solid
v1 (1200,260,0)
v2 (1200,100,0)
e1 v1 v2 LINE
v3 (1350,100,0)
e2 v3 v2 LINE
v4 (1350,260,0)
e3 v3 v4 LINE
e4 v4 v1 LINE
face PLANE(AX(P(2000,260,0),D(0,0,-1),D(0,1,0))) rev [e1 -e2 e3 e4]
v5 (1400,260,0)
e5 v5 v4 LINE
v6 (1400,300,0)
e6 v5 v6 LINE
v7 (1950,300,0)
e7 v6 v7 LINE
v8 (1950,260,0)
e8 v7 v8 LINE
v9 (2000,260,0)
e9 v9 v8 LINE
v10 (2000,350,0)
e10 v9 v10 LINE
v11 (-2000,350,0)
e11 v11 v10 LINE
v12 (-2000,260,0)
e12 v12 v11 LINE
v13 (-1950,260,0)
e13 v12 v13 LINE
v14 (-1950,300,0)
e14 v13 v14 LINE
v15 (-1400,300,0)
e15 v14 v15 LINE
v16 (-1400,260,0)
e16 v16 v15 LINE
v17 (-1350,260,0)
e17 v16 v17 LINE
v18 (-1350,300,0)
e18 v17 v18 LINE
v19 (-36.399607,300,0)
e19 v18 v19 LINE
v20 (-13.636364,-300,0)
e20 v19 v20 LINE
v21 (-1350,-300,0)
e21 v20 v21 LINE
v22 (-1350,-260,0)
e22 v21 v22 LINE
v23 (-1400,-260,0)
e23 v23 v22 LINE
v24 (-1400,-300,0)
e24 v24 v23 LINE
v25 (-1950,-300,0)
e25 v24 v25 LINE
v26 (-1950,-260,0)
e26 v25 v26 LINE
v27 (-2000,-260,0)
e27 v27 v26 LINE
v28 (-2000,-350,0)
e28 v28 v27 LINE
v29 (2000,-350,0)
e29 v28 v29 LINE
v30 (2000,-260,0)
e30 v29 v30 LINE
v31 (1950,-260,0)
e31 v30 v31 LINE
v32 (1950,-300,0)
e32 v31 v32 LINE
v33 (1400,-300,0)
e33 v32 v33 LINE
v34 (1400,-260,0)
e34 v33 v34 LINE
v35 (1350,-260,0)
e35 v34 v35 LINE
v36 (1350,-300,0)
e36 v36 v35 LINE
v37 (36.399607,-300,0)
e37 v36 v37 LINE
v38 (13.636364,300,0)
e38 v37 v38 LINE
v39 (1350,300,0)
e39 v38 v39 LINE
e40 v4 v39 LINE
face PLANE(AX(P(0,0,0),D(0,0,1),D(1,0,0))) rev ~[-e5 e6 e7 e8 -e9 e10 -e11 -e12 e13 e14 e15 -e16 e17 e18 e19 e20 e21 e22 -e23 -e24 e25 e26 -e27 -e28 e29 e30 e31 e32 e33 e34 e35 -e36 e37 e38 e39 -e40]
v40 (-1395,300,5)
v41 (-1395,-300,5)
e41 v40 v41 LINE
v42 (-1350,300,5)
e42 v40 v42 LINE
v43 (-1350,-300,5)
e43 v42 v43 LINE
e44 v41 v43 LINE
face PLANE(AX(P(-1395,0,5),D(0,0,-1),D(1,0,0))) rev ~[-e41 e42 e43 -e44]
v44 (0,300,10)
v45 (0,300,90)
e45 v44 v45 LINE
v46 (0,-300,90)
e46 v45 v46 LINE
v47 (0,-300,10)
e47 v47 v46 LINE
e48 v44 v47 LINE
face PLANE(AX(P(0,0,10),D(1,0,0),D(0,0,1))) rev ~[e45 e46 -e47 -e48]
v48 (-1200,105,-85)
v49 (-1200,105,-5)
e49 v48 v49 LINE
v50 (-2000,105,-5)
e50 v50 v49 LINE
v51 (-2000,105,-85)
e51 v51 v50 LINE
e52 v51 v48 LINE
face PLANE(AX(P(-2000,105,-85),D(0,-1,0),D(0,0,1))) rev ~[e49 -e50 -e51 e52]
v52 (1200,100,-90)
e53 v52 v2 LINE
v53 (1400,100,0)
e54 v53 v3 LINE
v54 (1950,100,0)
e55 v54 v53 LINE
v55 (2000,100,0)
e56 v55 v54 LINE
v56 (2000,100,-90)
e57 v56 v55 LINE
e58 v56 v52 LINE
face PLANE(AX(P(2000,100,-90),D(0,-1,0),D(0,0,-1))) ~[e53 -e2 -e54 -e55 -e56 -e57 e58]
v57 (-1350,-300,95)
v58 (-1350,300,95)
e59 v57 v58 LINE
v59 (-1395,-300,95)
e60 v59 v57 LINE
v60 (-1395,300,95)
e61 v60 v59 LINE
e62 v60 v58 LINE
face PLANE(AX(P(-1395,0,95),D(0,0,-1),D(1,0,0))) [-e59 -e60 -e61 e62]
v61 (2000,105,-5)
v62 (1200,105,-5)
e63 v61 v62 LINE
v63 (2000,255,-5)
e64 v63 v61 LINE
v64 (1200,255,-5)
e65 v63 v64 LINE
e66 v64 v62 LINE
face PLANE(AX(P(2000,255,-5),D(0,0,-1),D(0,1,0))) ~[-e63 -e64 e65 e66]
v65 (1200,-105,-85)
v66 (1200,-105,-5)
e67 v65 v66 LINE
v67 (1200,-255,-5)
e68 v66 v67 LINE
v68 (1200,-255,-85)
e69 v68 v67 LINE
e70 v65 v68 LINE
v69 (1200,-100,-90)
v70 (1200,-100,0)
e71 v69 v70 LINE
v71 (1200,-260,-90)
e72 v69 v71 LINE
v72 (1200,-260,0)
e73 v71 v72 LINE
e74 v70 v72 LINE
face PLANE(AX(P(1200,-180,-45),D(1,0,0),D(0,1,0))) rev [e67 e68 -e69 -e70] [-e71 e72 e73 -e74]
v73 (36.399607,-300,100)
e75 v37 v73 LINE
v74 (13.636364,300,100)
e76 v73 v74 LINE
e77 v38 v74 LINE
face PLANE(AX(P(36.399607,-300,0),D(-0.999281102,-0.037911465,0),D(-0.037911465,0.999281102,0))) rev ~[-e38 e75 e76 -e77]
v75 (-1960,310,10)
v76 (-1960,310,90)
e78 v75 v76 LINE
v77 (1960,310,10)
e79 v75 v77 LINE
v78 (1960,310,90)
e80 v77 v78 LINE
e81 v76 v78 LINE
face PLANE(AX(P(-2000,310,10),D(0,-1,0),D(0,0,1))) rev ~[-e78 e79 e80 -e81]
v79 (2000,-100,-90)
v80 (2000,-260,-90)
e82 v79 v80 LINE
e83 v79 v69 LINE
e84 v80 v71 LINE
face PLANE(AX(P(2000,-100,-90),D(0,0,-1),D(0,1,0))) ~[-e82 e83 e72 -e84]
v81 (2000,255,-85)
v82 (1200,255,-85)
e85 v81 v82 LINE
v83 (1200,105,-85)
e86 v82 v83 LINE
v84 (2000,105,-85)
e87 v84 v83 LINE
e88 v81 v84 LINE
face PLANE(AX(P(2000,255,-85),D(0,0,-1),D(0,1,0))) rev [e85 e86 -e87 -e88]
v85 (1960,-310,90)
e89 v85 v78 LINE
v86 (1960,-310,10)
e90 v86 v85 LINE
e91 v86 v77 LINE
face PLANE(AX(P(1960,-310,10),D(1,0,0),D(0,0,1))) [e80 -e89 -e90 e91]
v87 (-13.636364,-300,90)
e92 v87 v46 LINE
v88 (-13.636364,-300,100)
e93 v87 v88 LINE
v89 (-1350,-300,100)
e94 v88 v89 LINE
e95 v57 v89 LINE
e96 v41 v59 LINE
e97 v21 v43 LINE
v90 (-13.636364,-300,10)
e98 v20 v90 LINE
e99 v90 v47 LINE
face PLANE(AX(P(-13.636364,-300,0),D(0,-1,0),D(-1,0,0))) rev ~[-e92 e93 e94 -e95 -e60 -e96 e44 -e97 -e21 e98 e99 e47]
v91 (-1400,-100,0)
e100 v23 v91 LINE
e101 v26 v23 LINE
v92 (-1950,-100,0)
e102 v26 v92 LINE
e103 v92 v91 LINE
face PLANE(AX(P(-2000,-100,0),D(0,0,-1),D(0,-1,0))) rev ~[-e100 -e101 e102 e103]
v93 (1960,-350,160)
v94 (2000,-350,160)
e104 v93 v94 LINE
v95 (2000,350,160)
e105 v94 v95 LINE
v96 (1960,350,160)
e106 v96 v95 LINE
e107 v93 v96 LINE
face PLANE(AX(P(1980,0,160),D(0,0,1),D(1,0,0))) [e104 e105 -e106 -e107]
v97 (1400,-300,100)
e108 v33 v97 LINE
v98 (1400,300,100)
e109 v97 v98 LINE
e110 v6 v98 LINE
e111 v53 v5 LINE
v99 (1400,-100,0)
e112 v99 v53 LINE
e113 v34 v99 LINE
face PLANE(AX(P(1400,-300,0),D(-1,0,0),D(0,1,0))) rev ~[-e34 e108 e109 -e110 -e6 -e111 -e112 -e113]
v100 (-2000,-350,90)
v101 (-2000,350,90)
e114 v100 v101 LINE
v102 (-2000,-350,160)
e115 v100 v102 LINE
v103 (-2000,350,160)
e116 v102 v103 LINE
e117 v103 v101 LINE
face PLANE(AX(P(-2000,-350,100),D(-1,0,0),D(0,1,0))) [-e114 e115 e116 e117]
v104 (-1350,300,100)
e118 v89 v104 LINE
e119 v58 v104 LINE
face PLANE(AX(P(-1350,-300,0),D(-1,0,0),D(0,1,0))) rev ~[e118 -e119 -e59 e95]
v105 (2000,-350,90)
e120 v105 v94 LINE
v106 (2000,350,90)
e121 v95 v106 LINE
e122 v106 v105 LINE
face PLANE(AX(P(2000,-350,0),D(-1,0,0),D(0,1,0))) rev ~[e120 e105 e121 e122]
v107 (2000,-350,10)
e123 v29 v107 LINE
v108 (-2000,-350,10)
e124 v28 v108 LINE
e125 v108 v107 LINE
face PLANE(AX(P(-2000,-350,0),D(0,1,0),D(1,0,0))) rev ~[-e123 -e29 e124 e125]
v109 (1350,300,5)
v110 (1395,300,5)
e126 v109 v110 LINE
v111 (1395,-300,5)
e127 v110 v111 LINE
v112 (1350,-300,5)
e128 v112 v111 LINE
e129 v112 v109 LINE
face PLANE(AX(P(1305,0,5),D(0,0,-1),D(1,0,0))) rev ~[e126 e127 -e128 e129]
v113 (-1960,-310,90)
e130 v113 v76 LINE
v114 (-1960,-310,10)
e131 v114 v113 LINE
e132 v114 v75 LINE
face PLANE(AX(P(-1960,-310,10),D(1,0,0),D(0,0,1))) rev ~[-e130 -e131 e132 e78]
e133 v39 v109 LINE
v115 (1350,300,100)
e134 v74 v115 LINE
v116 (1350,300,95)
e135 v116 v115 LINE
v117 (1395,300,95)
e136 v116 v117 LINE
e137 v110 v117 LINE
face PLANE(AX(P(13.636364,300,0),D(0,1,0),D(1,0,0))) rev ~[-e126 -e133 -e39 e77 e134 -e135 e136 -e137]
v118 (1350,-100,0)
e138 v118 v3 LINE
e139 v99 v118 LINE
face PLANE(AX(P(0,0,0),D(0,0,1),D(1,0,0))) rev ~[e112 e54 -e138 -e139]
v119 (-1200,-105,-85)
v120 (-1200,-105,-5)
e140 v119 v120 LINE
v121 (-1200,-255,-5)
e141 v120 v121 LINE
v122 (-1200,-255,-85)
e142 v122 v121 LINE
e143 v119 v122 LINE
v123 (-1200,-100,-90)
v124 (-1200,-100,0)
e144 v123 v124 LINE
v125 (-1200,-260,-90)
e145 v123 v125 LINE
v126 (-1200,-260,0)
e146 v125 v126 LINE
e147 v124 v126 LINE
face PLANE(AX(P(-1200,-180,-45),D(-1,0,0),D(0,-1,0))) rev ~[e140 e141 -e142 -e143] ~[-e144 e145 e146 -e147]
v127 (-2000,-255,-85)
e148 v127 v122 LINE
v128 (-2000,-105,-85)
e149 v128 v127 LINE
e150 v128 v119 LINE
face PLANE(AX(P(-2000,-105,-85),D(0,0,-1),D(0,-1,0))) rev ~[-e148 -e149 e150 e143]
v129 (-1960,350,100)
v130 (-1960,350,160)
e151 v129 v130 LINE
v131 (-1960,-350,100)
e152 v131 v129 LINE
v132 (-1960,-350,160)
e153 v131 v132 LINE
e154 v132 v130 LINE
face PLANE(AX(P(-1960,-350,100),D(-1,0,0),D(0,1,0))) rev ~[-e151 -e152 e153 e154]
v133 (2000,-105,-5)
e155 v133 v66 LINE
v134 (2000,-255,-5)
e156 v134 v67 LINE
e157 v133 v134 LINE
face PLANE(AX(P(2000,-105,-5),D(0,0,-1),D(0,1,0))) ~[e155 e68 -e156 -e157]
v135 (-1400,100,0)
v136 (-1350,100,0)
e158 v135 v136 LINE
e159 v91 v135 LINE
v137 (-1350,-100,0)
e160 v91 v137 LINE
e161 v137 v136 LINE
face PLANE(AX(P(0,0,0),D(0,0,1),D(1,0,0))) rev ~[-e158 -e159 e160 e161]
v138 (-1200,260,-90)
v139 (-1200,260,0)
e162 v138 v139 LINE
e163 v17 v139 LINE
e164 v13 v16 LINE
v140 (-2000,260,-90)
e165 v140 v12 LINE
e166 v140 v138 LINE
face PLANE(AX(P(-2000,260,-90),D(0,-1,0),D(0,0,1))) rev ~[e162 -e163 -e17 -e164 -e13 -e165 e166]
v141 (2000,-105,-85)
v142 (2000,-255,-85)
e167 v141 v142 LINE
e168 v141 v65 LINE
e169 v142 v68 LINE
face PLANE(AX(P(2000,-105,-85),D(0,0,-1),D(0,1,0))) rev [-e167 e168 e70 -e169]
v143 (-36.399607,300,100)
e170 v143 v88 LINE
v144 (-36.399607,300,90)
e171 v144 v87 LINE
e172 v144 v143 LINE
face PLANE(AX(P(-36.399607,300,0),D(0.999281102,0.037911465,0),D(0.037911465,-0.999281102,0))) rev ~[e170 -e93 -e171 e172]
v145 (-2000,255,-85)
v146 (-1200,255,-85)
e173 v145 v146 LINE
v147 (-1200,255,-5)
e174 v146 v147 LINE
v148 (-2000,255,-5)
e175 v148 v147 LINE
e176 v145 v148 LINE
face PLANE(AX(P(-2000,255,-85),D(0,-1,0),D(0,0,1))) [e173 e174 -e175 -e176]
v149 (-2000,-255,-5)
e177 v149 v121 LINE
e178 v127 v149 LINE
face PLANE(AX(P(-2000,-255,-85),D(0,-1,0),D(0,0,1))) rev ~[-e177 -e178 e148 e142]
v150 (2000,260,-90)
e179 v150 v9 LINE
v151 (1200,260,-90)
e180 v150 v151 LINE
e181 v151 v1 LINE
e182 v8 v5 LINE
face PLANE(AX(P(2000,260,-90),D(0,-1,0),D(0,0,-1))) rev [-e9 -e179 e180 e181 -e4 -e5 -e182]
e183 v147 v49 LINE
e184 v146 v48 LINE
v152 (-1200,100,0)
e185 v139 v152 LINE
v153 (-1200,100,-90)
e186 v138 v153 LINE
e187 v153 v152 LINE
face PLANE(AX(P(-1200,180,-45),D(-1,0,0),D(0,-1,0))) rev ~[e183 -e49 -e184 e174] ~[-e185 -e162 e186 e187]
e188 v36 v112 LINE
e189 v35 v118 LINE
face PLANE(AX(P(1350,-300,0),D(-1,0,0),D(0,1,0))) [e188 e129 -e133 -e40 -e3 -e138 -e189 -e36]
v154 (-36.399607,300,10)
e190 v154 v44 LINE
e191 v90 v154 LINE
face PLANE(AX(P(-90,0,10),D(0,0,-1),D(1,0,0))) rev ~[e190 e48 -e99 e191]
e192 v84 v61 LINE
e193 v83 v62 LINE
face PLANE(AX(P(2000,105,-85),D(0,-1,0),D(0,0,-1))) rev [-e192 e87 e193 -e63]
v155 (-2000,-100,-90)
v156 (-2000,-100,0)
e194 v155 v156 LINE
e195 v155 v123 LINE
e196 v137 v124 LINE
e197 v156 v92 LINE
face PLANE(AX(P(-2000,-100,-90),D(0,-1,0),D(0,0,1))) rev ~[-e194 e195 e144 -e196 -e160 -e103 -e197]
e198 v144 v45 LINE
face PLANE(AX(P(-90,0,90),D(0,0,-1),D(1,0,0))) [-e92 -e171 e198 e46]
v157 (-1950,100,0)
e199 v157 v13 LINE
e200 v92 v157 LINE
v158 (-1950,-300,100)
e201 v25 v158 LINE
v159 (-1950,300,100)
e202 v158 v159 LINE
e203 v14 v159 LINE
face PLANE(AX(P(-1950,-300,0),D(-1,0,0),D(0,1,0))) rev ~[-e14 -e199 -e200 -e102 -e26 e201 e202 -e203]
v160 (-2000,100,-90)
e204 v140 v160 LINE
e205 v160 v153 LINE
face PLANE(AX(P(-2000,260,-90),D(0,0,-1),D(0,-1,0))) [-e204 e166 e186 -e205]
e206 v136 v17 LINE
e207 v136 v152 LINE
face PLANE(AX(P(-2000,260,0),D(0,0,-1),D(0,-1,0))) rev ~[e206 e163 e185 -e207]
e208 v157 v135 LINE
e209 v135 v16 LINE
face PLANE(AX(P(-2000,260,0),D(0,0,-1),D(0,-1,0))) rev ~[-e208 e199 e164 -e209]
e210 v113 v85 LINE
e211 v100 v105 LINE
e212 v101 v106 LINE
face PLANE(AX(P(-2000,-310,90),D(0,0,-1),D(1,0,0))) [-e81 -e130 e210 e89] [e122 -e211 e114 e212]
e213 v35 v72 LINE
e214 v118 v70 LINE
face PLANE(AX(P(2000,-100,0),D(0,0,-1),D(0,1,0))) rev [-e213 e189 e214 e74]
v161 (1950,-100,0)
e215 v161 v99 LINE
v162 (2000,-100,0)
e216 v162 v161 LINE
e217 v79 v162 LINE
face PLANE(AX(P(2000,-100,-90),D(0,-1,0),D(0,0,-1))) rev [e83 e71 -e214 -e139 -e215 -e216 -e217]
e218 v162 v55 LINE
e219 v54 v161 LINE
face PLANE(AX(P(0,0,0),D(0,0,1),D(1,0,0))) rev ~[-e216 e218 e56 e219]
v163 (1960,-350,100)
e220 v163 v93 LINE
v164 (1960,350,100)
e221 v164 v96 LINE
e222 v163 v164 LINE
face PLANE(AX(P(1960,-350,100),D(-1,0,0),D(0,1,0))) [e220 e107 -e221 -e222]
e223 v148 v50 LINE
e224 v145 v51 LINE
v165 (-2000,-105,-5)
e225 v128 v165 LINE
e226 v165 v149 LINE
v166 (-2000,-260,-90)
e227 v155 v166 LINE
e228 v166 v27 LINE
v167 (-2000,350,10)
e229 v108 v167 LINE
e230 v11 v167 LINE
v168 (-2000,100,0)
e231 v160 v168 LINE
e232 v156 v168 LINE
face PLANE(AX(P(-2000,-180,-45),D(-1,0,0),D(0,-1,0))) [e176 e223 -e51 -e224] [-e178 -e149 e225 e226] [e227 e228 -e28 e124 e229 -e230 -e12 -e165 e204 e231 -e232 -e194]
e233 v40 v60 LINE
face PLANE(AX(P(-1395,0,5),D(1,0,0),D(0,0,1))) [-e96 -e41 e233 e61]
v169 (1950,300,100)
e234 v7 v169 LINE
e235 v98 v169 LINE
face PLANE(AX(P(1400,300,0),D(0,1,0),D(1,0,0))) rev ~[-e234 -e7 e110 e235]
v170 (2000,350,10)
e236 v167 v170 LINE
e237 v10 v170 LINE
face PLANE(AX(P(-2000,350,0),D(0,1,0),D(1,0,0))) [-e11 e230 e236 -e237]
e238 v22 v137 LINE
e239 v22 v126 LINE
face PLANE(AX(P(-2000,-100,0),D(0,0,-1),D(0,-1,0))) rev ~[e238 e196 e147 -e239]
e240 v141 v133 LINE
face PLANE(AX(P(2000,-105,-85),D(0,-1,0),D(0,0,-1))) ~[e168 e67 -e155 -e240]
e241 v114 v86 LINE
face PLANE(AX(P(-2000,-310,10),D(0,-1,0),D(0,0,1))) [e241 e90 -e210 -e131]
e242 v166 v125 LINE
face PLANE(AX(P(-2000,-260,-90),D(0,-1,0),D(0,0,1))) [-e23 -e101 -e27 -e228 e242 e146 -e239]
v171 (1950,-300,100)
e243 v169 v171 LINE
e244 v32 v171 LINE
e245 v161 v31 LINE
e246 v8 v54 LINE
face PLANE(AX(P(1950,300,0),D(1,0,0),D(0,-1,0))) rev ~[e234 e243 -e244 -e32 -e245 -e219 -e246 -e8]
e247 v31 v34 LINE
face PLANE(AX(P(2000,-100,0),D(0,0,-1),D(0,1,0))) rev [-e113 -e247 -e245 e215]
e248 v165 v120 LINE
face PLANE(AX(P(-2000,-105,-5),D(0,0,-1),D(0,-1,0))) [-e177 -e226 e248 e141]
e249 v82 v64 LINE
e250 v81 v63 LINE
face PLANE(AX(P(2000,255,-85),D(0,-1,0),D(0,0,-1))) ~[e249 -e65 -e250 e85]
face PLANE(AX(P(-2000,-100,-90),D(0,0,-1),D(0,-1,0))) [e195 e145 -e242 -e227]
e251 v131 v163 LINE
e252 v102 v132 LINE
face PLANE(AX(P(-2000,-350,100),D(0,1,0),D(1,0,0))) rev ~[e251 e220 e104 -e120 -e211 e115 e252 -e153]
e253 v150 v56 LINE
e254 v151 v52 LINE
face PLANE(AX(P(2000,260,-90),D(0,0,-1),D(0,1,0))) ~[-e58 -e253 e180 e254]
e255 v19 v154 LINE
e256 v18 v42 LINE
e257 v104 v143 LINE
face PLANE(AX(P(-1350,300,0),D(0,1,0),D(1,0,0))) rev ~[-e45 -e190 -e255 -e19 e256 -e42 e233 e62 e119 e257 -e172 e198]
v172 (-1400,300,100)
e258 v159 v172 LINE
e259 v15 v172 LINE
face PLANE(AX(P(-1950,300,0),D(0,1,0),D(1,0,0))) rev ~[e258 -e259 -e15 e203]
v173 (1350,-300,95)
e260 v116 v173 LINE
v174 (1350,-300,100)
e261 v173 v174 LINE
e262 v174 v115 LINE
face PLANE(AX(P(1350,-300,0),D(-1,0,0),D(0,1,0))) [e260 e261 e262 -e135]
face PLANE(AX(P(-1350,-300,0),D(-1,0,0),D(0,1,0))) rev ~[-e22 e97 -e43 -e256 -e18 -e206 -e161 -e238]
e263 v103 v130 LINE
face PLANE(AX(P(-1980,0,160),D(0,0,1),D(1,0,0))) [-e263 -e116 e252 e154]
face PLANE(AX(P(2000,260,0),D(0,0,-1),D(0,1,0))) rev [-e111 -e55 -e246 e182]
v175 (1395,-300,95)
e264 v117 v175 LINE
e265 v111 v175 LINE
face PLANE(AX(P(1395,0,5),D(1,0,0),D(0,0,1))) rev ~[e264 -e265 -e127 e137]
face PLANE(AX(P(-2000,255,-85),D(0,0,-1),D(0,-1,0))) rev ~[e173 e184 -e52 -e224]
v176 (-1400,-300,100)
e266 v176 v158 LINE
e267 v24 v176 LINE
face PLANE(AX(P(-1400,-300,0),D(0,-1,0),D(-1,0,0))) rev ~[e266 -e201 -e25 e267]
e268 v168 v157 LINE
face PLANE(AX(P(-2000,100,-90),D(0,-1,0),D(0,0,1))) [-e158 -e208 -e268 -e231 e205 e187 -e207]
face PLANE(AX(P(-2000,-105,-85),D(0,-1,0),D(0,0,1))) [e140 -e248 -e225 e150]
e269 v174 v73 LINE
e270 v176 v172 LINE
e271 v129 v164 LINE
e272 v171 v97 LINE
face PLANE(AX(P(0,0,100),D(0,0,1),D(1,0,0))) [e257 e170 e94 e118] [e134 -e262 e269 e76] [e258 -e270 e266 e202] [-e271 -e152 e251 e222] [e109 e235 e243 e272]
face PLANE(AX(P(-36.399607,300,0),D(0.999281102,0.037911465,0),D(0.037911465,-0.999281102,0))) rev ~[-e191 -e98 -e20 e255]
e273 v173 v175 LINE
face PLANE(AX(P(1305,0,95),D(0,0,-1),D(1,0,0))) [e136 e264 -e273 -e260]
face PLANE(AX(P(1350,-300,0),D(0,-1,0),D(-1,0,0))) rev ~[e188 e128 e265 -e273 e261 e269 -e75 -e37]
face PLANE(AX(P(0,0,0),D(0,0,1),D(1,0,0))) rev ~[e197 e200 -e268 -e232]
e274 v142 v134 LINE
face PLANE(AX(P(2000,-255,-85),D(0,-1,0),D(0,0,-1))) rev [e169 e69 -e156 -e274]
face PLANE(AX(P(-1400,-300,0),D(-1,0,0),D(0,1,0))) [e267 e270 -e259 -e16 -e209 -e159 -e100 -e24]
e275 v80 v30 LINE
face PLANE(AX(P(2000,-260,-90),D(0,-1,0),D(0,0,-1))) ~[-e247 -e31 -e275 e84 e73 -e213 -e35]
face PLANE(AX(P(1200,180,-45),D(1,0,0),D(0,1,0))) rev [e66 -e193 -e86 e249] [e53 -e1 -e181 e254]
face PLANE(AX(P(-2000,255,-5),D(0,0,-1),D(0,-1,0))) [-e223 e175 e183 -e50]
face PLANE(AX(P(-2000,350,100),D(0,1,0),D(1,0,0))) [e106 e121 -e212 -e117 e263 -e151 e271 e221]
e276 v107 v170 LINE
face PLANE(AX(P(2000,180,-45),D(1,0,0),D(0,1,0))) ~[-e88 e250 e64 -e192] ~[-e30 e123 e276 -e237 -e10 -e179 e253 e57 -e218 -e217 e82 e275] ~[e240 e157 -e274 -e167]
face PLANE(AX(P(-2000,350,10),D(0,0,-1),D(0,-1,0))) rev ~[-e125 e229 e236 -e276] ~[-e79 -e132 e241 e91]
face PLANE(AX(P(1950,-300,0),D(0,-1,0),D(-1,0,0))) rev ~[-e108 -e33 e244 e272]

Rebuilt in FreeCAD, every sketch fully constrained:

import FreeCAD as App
import Part
import Sketcher
Q = App.Units.Quantity

doc = App.newDocument("Part")
params = doc.addObject("Spreadsheet::Sheet", "Params")
for row, (alias, value) in enumerate([
    ("sketch1_width", "4000 mm"),
    ("sketch1_width2", "550 mm"),
    ("sketch1_height", "700 mm"),
    ("sketch1_height2", "600 mm"),
    ("pad1_length", "100 mm"),
    ("sketch2_width", "40 mm"),
    ("sketch2_height", "80 mm"),
    ("sketch3_width", "40 mm"),
    ("sketch3_height", "80 mm"),
    ("sketch4_width", "90 mm"),
    ("sketch4_height", "80 mm"),
    ("pocket3_length", "300 mm"),
    ("pocket3_length2", "300 mm"),
    ("sketch5_width", "40 mm"),
    ("sketch5_height", "700 mm"),
    ("pad2_length", "60 mm"),
    ("sketch6_width", "35 mm"),
    ("sketch6_height", "55 mm"),
    ("sketch7_width", "160 mm"),
    ("sketch7_width2", "150 mm"),
    ("sketch7_height", "90 mm"),
    ("sketch7_height2", "80 mm"),
    ("pad3_length", "800 mm"),
    ("sketch8_width", "160 mm"),
    ("sketch8_width2", "150 mm"),
    ("sketch8_height", "90 mm"),
    ("sketch8_height2", "80 mm"),
    ("pad4_length", "800 mm"),
], start=1):
    params.set(f"A{row}", alias)
    params.set(f"B{row}", "=" + value)
    params.setAlias(f"B{row}", alias)

body = doc.addObject("PartDesign::Body", "Body")

# Sketch on XY plane
sketch1 = body.newObject("Sketcher::SketchObject", "Sketch")
sketch1.AttachmentSupport = (doc.getObject("XY_Plane"), [""])
sketch1.MapMode = "FlatFace"
sketch1.addGeometry(Part.LineSegment(App.Vector(-2000, 350, 0), App.Vector(-2000, -350, 0)), False)
sketch1.addGeometry(Part.LineSegment(App.Vector(-2000, -350, 0), App.Vector(2000, -350, 0)), False)
sketch1.addGeometry(Part.LineSegment(App.Vector(2000, -350, 0), App.Vector(2000, 350, 0)), False)
sketch1.addGeometry(Part.LineSegment(App.Vector(2000, 350, 0), App.Vector(-2000, 350, 0)), False)
sketch1.addGeometry(Part.LineSegment(App.Vector(-14, -300, 0), App.Vector(-1350, -300, 0)), False)
sketch1.addGeometry(Part.LineSegment(App.Vector(-1350, -300, 0), App.Vector(-1350, 300, 0)), False)
sketch1.addGeometry(Part.LineSegment(App.Vector(-1350, 300, 0), App.Vector(-36, 300, 0)), False)
sketch1.addGeometry(Part.LineSegment(App.Vector(-36, 300, 0), App.Vector(-14, -300, 0)), False)
sketch1.addGeometry(Part.LineSegment(App.Vector(-1400, -300, 0), App.Vector(-1950, -300, 0)), False)
sketch1.addGeometry(Part.LineSegment(App.Vector(-1950, -300, 0), App.Vector(-1950, 300, 0)), False)
sketch1.addGeometry(Part.LineSegment(App.Vector(-1950, 300, 0), App.Vector(-1400, 300, 0)), False)
sketch1.addGeometry(Part.LineSegment(App.Vector(-1400, 300, 0), App.Vector(-1400, -300, 0)), False)
sketch1.addGeometry(Part.LineSegment(App.Vector(14, 300, 0), App.Vector(1350, 300, 0)), False)
sketch1.addGeometry(Part.LineSegment(App.Vector(1350, 300, 0), App.Vector(1350, -300, 0)), False)
sketch1.addGeometry(Part.LineSegment(App.Vector(1350, -300, 0), App.Vector(36, -300, 0)), False)
sketch1.addGeometry(Part.LineSegment(App.Vector(36, -300, 0), App.Vector(14, 300, 0)), False)
sketch1.addGeometry(Part.LineSegment(App.Vector(1400, 300, 0), App.Vector(1950, 300, 0)), False)
sketch1.addGeometry(Part.LineSegment(App.Vector(1950, 300, 0), App.Vector(1950, -300, 0)), False)
sketch1.addGeometry(Part.LineSegment(App.Vector(1950, -300, 0), App.Vector(1400, -300, 0)), False)
sketch1.addGeometry(Part.LineSegment(App.Vector(1400, -300, 0), App.Vector(1400, 300, 0)), False)
sketch1.addConstraint(Sketcher.Constraint("Coincident", 0, 2, 1, 1))
sketch1.addConstraint(Sketcher.Constraint("Coincident", 1, 2, 2, 1))
sketch1.addConstraint(Sketcher.Constraint("Coincident", 2, 2, 3, 1))
sketch1.addConstraint(Sketcher.Constraint("Coincident", 3, 2, 0, 1))
sketch1.addConstraint(Sketcher.Constraint("Coincident", 4, 2, 5, 1))
sketch1.addConstraint(Sketcher.Constraint("Coincident", 5, 2, 6, 1))
sketch1.addConstraint(Sketcher.Constraint("Coincident", 6, 2, 7, 1))
sketch1.addConstraint(Sketcher.Constraint("Coincident", 7, 2, 4, 1))
sketch1.addConstraint(Sketcher.Constraint("Coincident", 8, 2, 9, 1))
sketch1.addConstraint(Sketcher.Constraint("Coincident", 9, 2, 10, 1))
sketch1.addConstraint(Sketcher.Constraint("Coincident", 10, 2, 11, 1))
sketch1.addConstraint(Sketcher.Constraint("Coincident", 11, 2, 8, 1))
sketch1.addConstraint(Sketcher.Constraint("Coincident", 12, 2, 13, 1))
sketch1.addConstraint(Sketcher.Constraint("Coincident", 13, 2, 14, 1))
sketch1.addConstraint(Sketcher.Constraint("Coincident", 14, 2, 15, 1))
sketch1.addConstraint(Sketcher.Constraint("Coincident", 15, 2, 12, 1))
sketch1.addConstraint(Sketcher.Constraint("Coincident", 16, 2, 17, 1))
sketch1.addConstraint(Sketcher.Constraint("Coincident", 17, 2, 18, 1))
sketch1.addConstraint(Sketcher.Constraint("Coincident", 18, 2, 19, 1))
sketch1.addConstraint(Sketcher.Constraint("Coincident", 19, 2, 16, 1))
sketch1.addConstraint(Sketcher.Constraint("Vertical", 0))
sketch1.addConstraint(Sketcher.Constraint("Horizontal", 1))
sketch1.addConstraint(Sketcher.Constraint("Vertical", 2))
sketch1.addConstraint(Sketcher.Constraint("Horizontal", 3))
sketch1.addConstraint(Sketcher.Constraint("Horizontal", 4))
sketch1.addConstraint(Sketcher.Constraint("Vertical", 5))
sketch1.addConstraint(Sketcher.Constraint("Horizontal", 6))
sketch1.addConstraint(Sketcher.Constraint("Horizontal", 8))
sketch1.addConstraint(Sketcher.Constraint("Vertical", 9))
sketch1.addConstraint(Sketcher.Constraint("Horizontal", 10))
sketch1.addConstraint(Sketcher.Constraint("Vertical", 11))
sketch1.addConstraint(Sketcher.Constraint("Horizontal", 12))
sketch1.addConstraint(Sketcher.Constraint("Vertical", 13))
sketch1.addConstraint(Sketcher.Constraint("Horizontal", 14))
sketch1.addConstraint(Sketcher.Constraint("Horizontal", 16))
sketch1.addConstraint(Sketcher.Constraint("Vertical", 17))
sketch1.addConstraint(Sketcher.Constraint("Horizontal", 18))
sketch1.addConstraint(Sketcher.Constraint("Vertical", 19))
sketch1.addConstraint(Sketcher.Constraint("Symmetric", 0, 2, 2, 2, -1, 1))
sketch1.addConstraint(Sketcher.Constraint("Symmetric", 4, 2, 12, 2, -1, 1))
sketch1.addConstraint(Sketcher.Constraint("Symmetric", 6, 2, 14, 2, -1, 1))
sketch1.addConstraint(Sketcher.Constraint("Symmetric", 8, 2, 16, 2, -1, 1))
sketch1.addConstraint(Sketcher.Constraint("Symmetric", 10, 2, 18, 2, -1, 1))
sketch1.addConstraint(Sketcher.Constraint("Parallel", 7, 15))
sketch1.addConstraint(Sketcher.Constraint("Horizontal", 7, 2, 8, 2))
sketch1.addConstraint(Sketcher.Constraint("Horizontal", 6, 2, 9, 2))
sketch1.addConstraint(Sketcher.Constraint("Horizontal", 10, 2, 12, 2))
sketch1.addConstraint(Sketcher.Constraint("DistanceX", 1, 1, 1, 2, Q("4000 mm")))
sketch1.addConstraint(Sketcher.Constraint("DistanceX", 8, 2, 8, 1, Q("550 mm")))
sketch1.addConstraint(Sketcher.Constraint("DistanceY", 0, 2, 0, 1, Q("700 mm")))
sketch1.addConstraint(Sketcher.Constraint("DistanceY", 5, 1, 5, 2, Q("600 mm")))
sketch1.addConstraint(Sketcher.Constraint("DistanceX", 4, 2, -1, 1, Q("1350 mm")))
sketch1.addConstraint(Sketcher.Constraint("DistanceX", 8, 2, -1, 1, Q("1950 mm")))
sketch1.addConstraint(Sketcher.Constraint("Distance", 7, Q("600.431649 mm")))
sketch1.addConstraint(Sketcher.Constraint("DistanceX", 4, 2, 4, 1, Q("1336.363636 mm")))
sketch1.setExpression("Constraints[47]", "Params.sketch1_width")
sketch1.setExpression("Constraints[48]", "Params.sketch1_width2")
sketch1.setExpression("Constraints[49]", "Params.sketch1_height")
sketch1.setExpression("Constraints[50]", "Params.sketch1_height2")
pad1 = body.newObject("PartDesign::Pad", "Pad")
pad1.Profile = sketch1
pad1.setExpression("Length", "Params.pad1_length")

# Sketch on YZ plane
sketch2 = body.newObject("Sketcher::SketchObject", "Sketch001")
sketch2.AttachmentSupport = (doc.getObject("YZ_Plane"), [""])
sketch2.MapMode = "FlatFace"
sketch2.AttachmentOffset = App.Placement(App.Vector(0, 0, -2000), App.Rotation())
sketch2.addGeometry(Part.LineSegment(App.Vector(350, 90, 0), App.Vector(350, 10, 0)), False)
sketch2.addGeometry(Part.LineSegment(App.Vector(350, 10, 0), App.Vector(310, 10, 0)), False)
sketch2.addGeometry(Part.LineSegment(App.Vector(310, 10, 0), App.Vector(310, 90, 0)), False)
sketch2.addGeometry(Part.LineSegment(App.Vector(310, 90, 0), App.Vector(350, 90, 0)), False)
sketch2.addGeometry(Part.LineSegment(App.Vector(-310, 90, 0), App.Vector(-310, 10, 0)), False)
sketch2.addGeometry(Part.LineSegment(App.Vector(-310, 10, 0), App.Vector(-350, 10, 0)), False)
sketch2.addGeometry(Part.LineSegment(App.Vector(-350, 10, 0), App.Vector(-350, 90, 0)), False)
sketch2.addGeometry(Part.LineSegment(App.Vector(-350, 90, 0), App.Vector(-310, 90, 0)), False)
sketch2.addConstraint(Sketcher.Constraint("Coincident", 0, 2, 1, 1))
sketch2.addConstraint(Sketcher.Constraint("Coincident", 1, 2, 2, 1))
sketch2.addConstraint(Sketcher.Constraint("Coincident", 2, 2, 3, 1))
sketch2.addConstraint(Sketcher.Constraint("Coincident", 3, 2, 0, 1))
sketch2.addConstraint(Sketcher.Constraint("Coincident", 4, 2, 5, 1))
sketch2.addConstraint(Sketcher.Constraint("Coincident", 5, 2, 6, 1))
sketch2.addConstraint(Sketcher.Constraint("Coincident", 6, 2, 7, 1))
sketch2.addConstraint(Sketcher.Constraint("Coincident", 7, 2, 4, 1))
sketch2.addConstraint(Sketcher.Constraint("Vertical", 0))
sketch2.addConstraint(Sketcher.Constraint("Horizontal", 1))
sketch2.addConstraint(Sketcher.Constraint("Vertical", 2))
sketch2.addConstraint(Sketcher.Constraint("Horizontal", 3))
sketch2.addConstraint(Sketcher.Constraint("Vertical", 4))
sketch2.addConstraint(Sketcher.Constraint("Horizontal", 5))
sketch2.addConstraint(Sketcher.Constraint("Vertical", 6))
sketch2.addConstraint(Sketcher.Constraint("Horizontal", 7))
sketch2.addConstraint(Sketcher.Constraint("Symmetric", 1, 2, 4, 2, -2))
sketch2.addConstraint(Sketcher.Constraint("Symmetric", 3, 2, 6, 2, -2))
sketch2.addConstraint(Sketcher.Constraint("DistanceX", 1, 2, 1, 1, Q("40 mm")))
sketch2.addConstraint(Sketcher.Constraint("DistanceY", 0, 2, 0, 1, Q("80 mm")))
sketch2.addConstraint(Sketcher.Constraint("DistanceX", -1, 1, 0, 2, Q("350 mm")))
sketch2.addConstraint(Sketcher.Constraint("DistanceY", -1, 1, 0, 2, Q("10 mm")))
sketch2.setExpression("Constraints[18]", "Params.sketch2_width")
sketch2.setExpression("Constraints[19]", "Params.sketch2_height")
pocket1 = body.newObject("PartDesign::Pocket", "Pocket")
pocket1.Profile = sketch2
pocket1.Type = "ThroughAll"
pocket1.Reversed = True

# Sketch on XZ plane
sketch3 = body.newObject("Sketcher::SketchObject", "Sketch002")
sketch3.AttachmentSupport = (doc.getObject("XZ_Plane"), [""])
sketch3.MapMode = "FlatFace"
sketch3.AttachmentOffset = App.Placement(App.Vector(0, 0, 310), App.Rotation())
sketch3.addGeometry(Part.LineSegment(App.Vector(1960, 90, 0), App.Vector(1960, 10, 0)), False)
sketch3.addGeometry(Part.LineSegment(App.Vector(1960, 10, 0), App.Vector(2000, 10, 0)), False)
sketch3.addGeometry(Part.LineSegment(App.Vector(2000, 10, 0), App.Vector(2000, 90, 0)), False)
sketch3.addGeometry(Part.LineSegment(App.Vector(2000, 90, 0), App.Vector(1960, 90, 0)), False)
sketch3.addGeometry(Part.LineSegment(App.Vector(-2000, 90, 0), App.Vector(-2000, 10, 0)), False)
sketch3.addGeometry(Part.LineSegment(App.Vector(-2000, 10, 0), App.Vector(-1960, 10, 0)), False)
sketch3.addGeometry(Part.LineSegment(App.Vector(-1960, 10, 0), App.Vector(-1960, 90, 0)), False)
sketch3.addGeometry(Part.LineSegment(App.Vector(-1960, 90, 0), App.Vector(-2000, 90, 0)), False)
sketch3.addConstraint(Sketcher.Constraint("Coincident", 0, 2, 1, 1))
sketch3.addConstraint(Sketcher.Constraint("Coincident", 1, 2, 2, 1))
sketch3.addConstraint(Sketcher.Constraint("Coincident", 2, 2, 3, 1))
sketch3.addConstraint(Sketcher.Constraint("Coincident", 3, 2, 0, 1))
sketch3.addConstraint(Sketcher.Constraint("Coincident", 4, 2, 5, 1))
sketch3.addConstraint(Sketcher.Constraint("Coincident", 5, 2, 6, 1))
sketch3.addConstraint(Sketcher.Constraint("Coincident", 6, 2, 7, 1))
sketch3.addConstraint(Sketcher.Constraint("Coincident", 7, 2, 4, 1))
sketch3.addConstraint(Sketcher.Constraint("Vertical", 0))
sketch3.addConstraint(Sketcher.Constraint("Horizontal", 1))
sketch3.addConstraint(Sketcher.Constraint("Vertical", 2))
sketch3.addConstraint(Sketcher.Constraint("Horizontal", 3))
sketch3.addConstraint(Sketcher.Constraint("Vertical", 4))
sketch3.addConstraint(Sketcher.Constraint("Horizontal", 5))
sketch3.addConstraint(Sketcher.Constraint("Vertical", 6))
sketch3.addConstraint(Sketcher.Constraint("Horizontal", 7))
sketch3.addConstraint(Sketcher.Constraint("Symmetric", 1, 2, 4, 2, -2))
sketch3.addConstraint(Sketcher.Constraint("Symmetric", 3, 2, 6, 2, -2))
sketch3.addConstraint(Sketcher.Constraint("DistanceX", 1, 1, 1, 2, Q("40 mm")))
sketch3.addConstraint(Sketcher.Constraint("DistanceY", 0, 2, 0, 1, Q("80 mm")))
sketch3.addConstraint(Sketcher.Constraint("DistanceX", -1, 1, 0, 2, Q("1960 mm")))
sketch3.addConstraint(Sketcher.Constraint("DistanceY", -1, 1, 0, 2, Q("10 mm")))
sketch3.setExpression("Constraints[18]", "Params.sketch3_width")
sketch3.setExpression("Constraints[19]", "Params.sketch3_height")
pocket2 = body.newObject("PartDesign::Pocket", "Pocket001")
pocket2.Profile = sketch3
pocket2.Type = "ThroughAll"

# Sketch on XZ plane
sketch4 = body.newObject("Sketcher::SketchObject", "Sketch003")
sketch4.AttachmentSupport = (doc.getObject("XZ_Plane"), [""])
sketch4.MapMode = "FlatFace"
sketch4.addGeometry(Part.LineSegment(App.Vector(-90, 90, 0), App.Vector(-90, 10, 0)), False)
sketch4.addGeometry(Part.LineSegment(App.Vector(-90, 10, 0), App.Vector(0, 10, 0)), False)
sketch4.addGeometry(Part.LineSegment(App.Vector(0, 10, 0), App.Vector(0, 90, 0)), False)
sketch4.addGeometry(Part.LineSegment(App.Vector(0, 90, 0), App.Vector(-90, 90, 0)), False)
sketch4.addGeometry(Part.LineSegment(App.Vector(-1395, 95, 0), App.Vector(-1395, 5, 0)), False)
sketch4.addGeometry(Part.LineSegment(App.Vector(-1395, 5, 0), App.Vector(-1305, 5, 0)), False)
sketch4.addGeometry(Part.LineSegment(App.Vector(-1305, 5, 0), App.Vector(-1305, 95, 0)), False)
sketch4.addGeometry(Part.LineSegment(App.Vector(-1305, 95, 0), App.Vector(-1395, 95, 0)), False)
sketch4.addGeometry(Part.LineSegment(App.Vector(1305, 95, 0), App.Vector(1305, 5, 0)), False)
sketch4.addGeometry(Part.LineSegment(App.Vector(1305, 5, 0), App.Vector(1395, 5, 0)), False)
sketch4.addGeometry(Part.LineSegment(App.Vector(1395, 5, 0), App.Vector(1395, 95, 0)), False)
sketch4.addGeometry(Part.LineSegment(App.Vector(1395, 95, 0), App.Vector(1305, 95, 0)), False)
sketch4.addConstraint(Sketcher.Constraint("Coincident", 0, 2, 1, 1))
sketch4.addConstraint(Sketcher.Constraint("Coincident", 1, 2, 2, 1))
sketch4.addConstraint(Sketcher.Constraint("Coincident", 2, 2, 3, 1))
sketch4.addConstraint(Sketcher.Constraint("Coincident", 3, 2, 0, 1))
sketch4.addConstraint(Sketcher.Constraint("Coincident", 4, 2, 5, 1))
sketch4.addConstraint(Sketcher.Constraint("Coincident", 5, 2, 6, 1))
sketch4.addConstraint(Sketcher.Constraint("Coincident", 6, 2, 7, 1))
sketch4.addConstraint(Sketcher.Constraint("Coincident", 7, 2, 4, 1))
sketch4.addConstraint(Sketcher.Constraint("Coincident", 8, 2, 9, 1))
sketch4.addConstraint(Sketcher.Constraint("Coincident", 9, 2, 10, 1))
sketch4.addConstraint(Sketcher.Constraint("Coincident", 10, 2, 11, 1))
sketch4.addConstraint(Sketcher.Constraint("Coincident", 11, 2, 8, 1))
sketch4.addConstraint(Sketcher.Constraint("Vertical", 0))
sketch4.addConstraint(Sketcher.Constraint("Horizontal", 1))
sketch4.addConstraint(Sketcher.Constraint("Vertical", 2))
sketch4.addConstraint(Sketcher.Constraint("Horizontal", 3))
sketch4.addConstraint(Sketcher.Constraint("Vertical", 4))
sketch4.addConstraint(Sketcher.Constraint("Horizontal", 5))
sketch4.addConstraint(Sketcher.Constraint("Vertical", 6))
sketch4.addConstraint(Sketcher.Constraint("Horizontal", 7))
sketch4.addConstraint(Sketcher.Constraint("Vertical", 8))
sketch4.addConstraint(Sketcher.Constraint("Horizontal", 9))
sketch4.addConstraint(Sketcher.Constraint("Vertical", 10))
sketch4.addConstraint(Sketcher.Constraint("Horizontal", 11))
sketch4.addConstraint(Sketcher.Constraint("Symmetric", 5, 2, 8, 2, -2))
sketch4.addConstraint(Sketcher.Constraint("Symmetric", 7, 2, 10, 2, -2))
sketch4.addConstraint(Sketcher.Constraint("PointOnObject", 1, 2, -2))
sketch4.addConstraint(Sketcher.Constraint("Equal", 3, 5))
sketch4.addConstraint(Sketcher.Constraint("Equal", 11, 4))
sketch4.addConstraint(Sketcher.Constraint("DistanceX", 1, 1, 1, 2, Q("90 mm")))
sketch4.addConstraint(Sketcher.Constraint("DistanceY", 0, 2, 0, 1, Q("80 mm")))
sketch4.addConstraint(Sketcher.Constraint("DistanceY", -1, 1, 0, 2, Q("10 mm")))
sketch4.addConstraint(Sketcher.Constraint("DistanceX", 4, 2, -1, 1, Q("1395 mm")))
sketch4.addConstraint(Sketcher.Constraint("DistanceY", -1, 1, 4, 2, Q("5 mm")))
sketch4.setExpression("Constraints[29]", "Params.sketch4_width")
sketch4.setExpression("Constraints[30]", "Params.sketch4_height")
pocket3 = body.newObject("PartDesign::Pocket", "Pocket002")
pocket3.Profile = sketch4
pocket3.Type = "TwoLengths"
pocket3.setExpression("Length", "Params.pocket3_length")
pocket3.setExpression("Length2", "Params.pocket3_length2")

# Sketch on XY plane
sketch5 = body.newObject("Sketcher::SketchObject", "Sketch004")
sketch5.AttachmentSupport = (doc.getObject("XY_Plane"), [""])
sketch5.MapMode = "FlatFace"
sketch5.AttachmentOffset = App.Placement(App.Vector(0, 0, 100), App.Rotation())
sketch5.addGeometry(Part.LineSegment(App.Vector(-2000, 350, 0), App.Vector(-2000, -350, 0)), False)
sketch5.addGeometry(Part.LineSegment(App.Vector(-2000, -350, 0), App.Vector(-1960, -350, 0)), False)
sketch5.addGeometry(Part.LineSegment(App.Vector(-1960, -350, 0), App.Vector(-1960, 350, 0)), False)
sketch5.addGeometry(Part.LineSegment(App.Vector(-1960, 350, 0), App.Vector(-2000, 350, 0)), False)
sketch5.addGeometry(Part.LineSegment(App.Vector(1960, 350, 0), App.Vector(1960, -350, 0)), False)
sketch5.addGeometry(Part.LineSegment(App.Vector(1960, -350, 0), App.Vector(2000, -350, 0)), False)
sketch5.addGeometry(Part.LineSegment(App.Vector(2000, -350, 0), App.Vector(2000, 350, 0)), False)
sketch5.addGeometry(Part.LineSegment(App.Vector(2000, 350, 0), App.Vector(1960, 350, 0)), False)
sketch5.addConstraint(Sketcher.Constraint("Coincident", 0, 2, 1, 1))
sketch5.addConstraint(Sketcher.Constraint("Coincident", 1, 2, 2, 1))
sketch5.addConstraint(Sketcher.Constraint("Coincident", 2, 2, 3, 1))
sketch5.addConstraint(Sketcher.Constraint("Coincident", 3, 2, 0, 1))
sketch5.addConstraint(Sketcher.Constraint("Coincident", 4, 2, 5, 1))
sketch5.addConstraint(Sketcher.Constraint("Coincident", 5, 2, 6, 1))
sketch5.addConstraint(Sketcher.Constraint("Coincident", 6, 2, 7, 1))
sketch5.addConstraint(Sketcher.Constraint("Coincident", 7, 2, 4, 1))
sketch5.addConstraint(Sketcher.Constraint("Vertical", 0))
sketch5.addConstraint(Sketcher.Constraint("Horizontal", 1))
sketch5.addConstraint(Sketcher.Constraint("Vertical", 2))
sketch5.addConstraint(Sketcher.Constraint("Horizontal", 3))
sketch5.addConstraint(Sketcher.Constraint("Vertical", 4))
sketch5.addConstraint(Sketcher.Constraint("Horizontal", 5))
sketch5.addConstraint(Sketcher.Constraint("Vertical", 6))
sketch5.addConstraint(Sketcher.Constraint("Horizontal", 7))
sketch5.addConstraint(Sketcher.Constraint("Symmetric", 2, 2, 4, 2, -1, 1))
sketch5.addConstraint(Sketcher.Constraint("Symmetric", 0, 2, 6, 2, -1, 1))
sketch5.addConstraint(Sketcher.Constraint("Horizontal", 1, 2, 4, 2))
sketch5.addConstraint(Sketcher.Constraint("DistanceX", 1, 1, 1, 2, Q("40 mm")))
sketch5.addConstraint(Sketcher.Constraint("DistanceY", 0, 2, 0, 1, Q("700 mm")))
sketch5.addConstraint(Sketcher.Constraint("DistanceX", 0, 2, -1, 1, Q("2000 mm")))
sketch5.setExpression("Constraints[19]", "Params.sketch5_width")
sketch5.setExpression("Constraints[20]", "Params.sketch5_height")
pad2 = body.newObject("PartDesign::Pad", "Pad001")
pad2.Profile = sketch5
pad2.setExpression("Length", "Params.pad2_length")

# Sketch on XZ plane
sketch6 = body.newObject("Sketcher::SketchObject", "Sketch005")
sketch6.AttachmentSupport = (doc.getObject("XZ_Plane"), [""])
sketch6.MapMode = "FlatFace"
sketch6.AttachmentOffset = App.Placement(App.Vector(0, 0, 350), App.Rotation())
sketch6.addGeometry(Part.LineSegment(App.Vector(1263, 158, 0), App.Vector(1263, 102, 0)), False)
sketch6.addGeometry(Part.LineSegment(App.Vector(1263, 102, 0), App.Vector(1298, 102, 0)), False)
sketch6.addGeometry(Part.LineSegment(App.Vector(1298, 102, 0), App.Vector(1298, 158, 0)), False)
sketch6.addGeometry(Part.LineSegment(App.Vector(1298, 158, 0), App.Vector(1263, 158, 0)), False)
sketch6.addGeometry(Part.LineSegment(App.Vector(-1298, 158, 0), App.Vector(-1298, 102, 0)), False)
sketch6.addGeometry(Part.LineSegment(App.Vector(-1298, 102, 0), App.Vector(-1263, 102, 0)), False)
sketch6.addGeometry(Part.LineSegment(App.Vector(-1263, 102, 0), App.Vector(-1263, 158, 0)), False)
sketch6.addGeometry(Part.LineSegment(App.Vector(-1263, 158, 0), App.Vector(-1298, 158, 0)), False)
sketch6.addConstraint(Sketcher.Constraint("Coincident", 0, 2, 1, 1))
sketch6.addConstraint(Sketcher.Constraint("Coincident", 1, 2, 2, 1))
sketch6.addConstraint(Sketcher.Constraint("Coincident", 2, 2, 3, 1))
sketch6.addConstraint(Sketcher.Constraint("Coincident", 3, 2, 0, 1))
sketch6.addConstraint(Sketcher.Constraint("Coincident", 4, 2, 5, 1))
sketch6.addConstraint(Sketcher.Constraint("Coincident", 5, 2, 6, 1))
sketch6.addConstraint(Sketcher.Constraint("Coincident", 6, 2, 7, 1))
sketch6.addConstraint(Sketcher.Constraint("Coincident", 7, 2, 4, 1))
sketch6.addConstraint(Sketcher.Constraint("Vertical", 0))
sketch6.addConstraint(Sketcher.Constraint("Horizontal", 1))
sketch6.addConstraint(Sketcher.Constraint("Vertical", 2))
sketch6.addConstraint(Sketcher.Constraint("Horizontal", 3))
sketch6.addConstraint(Sketcher.Constraint("Vertical", 4))
sketch6.addConstraint(Sketcher.Constraint("Horizontal", 5))
sketch6.addConstraint(Sketcher.Constraint("Vertical", 6))
sketch6.addConstraint(Sketcher.Constraint("Horizontal", 7))
sketch6.addConstraint(Sketcher.Constraint("Symmetric", 1, 2, 4, 2, -2))
sketch6.addConstraint(Sketcher.Constraint("Symmetric", 3, 2, 6, 2, -2))
sketch6.addConstraint(Sketcher.Constraint("DistanceX", 1, 1, 1, 2, Q("35 mm")))
sketch6.addConstraint(Sketcher.Constraint("DistanceY", 0, 2, 0, 1, Q("55 mm")))
sketch6.addConstraint(Sketcher.Constraint("DistanceY", -1, 1, 0, 2, Q("102.5 mm")))
sketch6.addConstraint(Sketcher.Constraint("DistanceX", -1, 1, 0, 2, Q("1262.926621 mm")))
sketch6.setExpression("Constraints[18]", "Params.sketch6_width")
sketch6.setExpression("Constraints[19]", "Params.sketch6_height")
pocket4 = body.newObject("PartDesign::Pocket", "Pocket003")
pocket4.Profile = sketch6
pocket4.Type = "ThroughAll"
body2 = doc.addObject("PartDesign::Body", "Body001")

# Sketch on YZ plane
sketch7 = body2.newObject("Sketcher::SketchObject", "Sketch006")
sketch7.AttachmentSupport = (doc.getObject("YZ_Plane001"), [""])
sketch7.MapMode = "FlatFace"
sketch7.AttachmentOffset = App.Placement(App.Vector(0, 0, -2000), App.Rotation())
sketch7.addGeometry(Part.LineSegment(App.Vector(260, 0, 0), App.Vector(260, -90, 0)), False)
sketch7.addGeometry(Part.LineSegment(App.Vector(260, -90, 0), App.Vector(100, -90, 0)), False)
sketch7.addGeometry(Part.LineSegment(App.Vector(100, -90, 0), App.Vector(100, 0, 0)), False)
sketch7.addGeometry(Part.LineSegment(App.Vector(100, 0, 0), App.Vector(260, 0, 0)), False)
sketch7.addGeometry(Part.LineSegment(App.Vector(105, -85, 0), App.Vector(255, -85, 0)), False)
sketch7.addGeometry(Part.LineSegment(App.Vector(255, -85, 0), App.Vector(255, -5, 0)), False)
sketch7.addGeometry(Part.LineSegment(App.Vector(255, -5, 0), App.Vector(105, -5, 0)), False)
sketch7.addGeometry(Part.LineSegment(App.Vector(105, -5, 0), App.Vector(105, -85, 0)), False)
sketch7.addConstraint(Sketcher.Constraint("Coincident", 0, 2, 1, 1))
sketch7.addConstraint(Sketcher.Constraint("Coincident", 1, 2, 2, 1))
sketch7.addConstraint(Sketcher.Constraint("Coincident", 2, 2, 3, 1))
sketch7.addConstraint(Sketcher.Constraint("Coincident", 3, 2, 0, 1))
sketch7.addConstraint(Sketcher.Constraint("Coincident", 4, 2, 5, 1))
sketch7.addConstraint(Sketcher.Constraint("Coincident", 5, 2, 6, 1))
sketch7.addConstraint(Sketcher.Constraint("Coincident", 6, 2, 7, 1))
sketch7.addConstraint(Sketcher.Constraint("Coincident", 7, 2, 4, 1))
sketch7.addConstraint(Sketcher.Constraint("Vertical", 0))
sketch7.addConstraint(Sketcher.Constraint("Horizontal", 1))
sketch7.addConstraint(Sketcher.Constraint("Vertical", 2))
sketch7.addConstraint(Sketcher.Constraint("Horizontal", 3))
sketch7.addConstraint(Sketcher.Constraint("Horizontal", 4))
sketch7.addConstraint(Sketcher.Constraint("Vertical", 5))
sketch7.addConstraint(Sketcher.Constraint("Horizontal", 6))
sketch7.addConstraint(Sketcher.Constraint("Vertical", 7))
sketch7.addConstraint(Sketcher.Constraint("PointOnObject", 2, 2, -1))
sketch7.addConstraint(Sketcher.Constraint("DistanceX", 1, 2, 1, 1, Q("160 mm")))
sketch7.addConstraint(Sketcher.Constraint("DistanceX", 4, 1, 4, 2, Q("150 mm")))
sketch7.addConstraint(Sketcher.Constraint("DistanceY", 0, 2, 0, 1, Q("90 mm")))
sketch7.addConstraint(Sketcher.Constraint("DistanceY", 5, 1, 5, 2, Q("80 mm")))
sketch7.addConstraint(Sketcher.Constraint("DistanceX", -1, 1, 0, 2, Q("260 mm")))
sketch7.addConstraint(Sketcher.Constraint("DistanceX", -1, 1, 4, 2, Q("255 mm")))
sketch7.addConstraint(Sketcher.Constraint("DistanceY", 4, 2, -1, 1, Q("85 mm")))
sketch7.setExpression("Constraints[17]", "Params.sketch7_width")
sketch7.setExpression("Constraints[18]", "Params.sketch7_width2")
sketch7.setExpression("Constraints[19]", "Params.sketch7_height")
sketch7.setExpression("Constraints[20]", "Params.sketch7_height2")
pad3 = body2.newObject("PartDesign::Pad", "Pad002")
pad3.Profile = sketch7
pad3.setExpression("Length", "Params.pad3_length")
body3 = doc.addObject("PartDesign::Body", "Body002")

# Sketch on YZ plane
sketch8 = body3.newObject("Sketcher::SketchObject", "Sketch007")
sketch8.AttachmentSupport = (doc.getObject("YZ_Plane002"), [""])
sketch8.MapMode = "FlatFace"
sketch8.AttachmentOffset = App.Placement(App.Vector(0, 0, -2000), App.Rotation())
sketch8.addGeometry(Part.LineSegment(App.Vector(-100, 0, 0), App.Vector(-100, -90, 0)), False)
sketch8.addGeometry(Part.LineSegment(App.Vector(-100, -90, 0), App.Vector(-260, -90, 0)), False)
sketch8.addGeometry(Part.LineSegment(App.Vector(-260, -90, 0), App.Vector(-260, 0, 0)), False)
sketch8.addGeometry(Part.LineSegment(App.Vector(-260, 0, 0), App.Vector(-100, 0, 0)), False)
sketch8.addGeometry(Part.LineSegment(App.Vector(-255, -85, 0), App.Vector(-105, -85, 0)), False)
sketch8.addGeometry(Part.LineSegment(App.Vector(-105, -85, 0), App.Vector(-105, -5, 0)), False)
sketch8.addGeometry(Part.LineSegment(App.Vector(-105, -5, 0), App.Vector(-255, -5, 0)), False)
sketch8.addGeometry(Part.LineSegment(App.Vector(-255, -5, 0), App.Vector(-255, -85, 0)), False)
sketch8.addConstraint(Sketcher.Constraint("Coincident", 0, 2, 1, 1))
sketch8.addConstraint(Sketcher.Constraint("Coincident", 1, 2, 2, 1))
sketch8.addConstraint(Sketcher.Constraint("Coincident", 2, 2, 3, 1))
sketch8.addConstraint(Sketcher.Constraint("Coincident", 3, 2, 0, 1))
sketch8.addConstraint(Sketcher.Constraint("Coincident", 4, 2, 5, 1))
sketch8.addConstraint(Sketcher.Constraint("Coincident", 5, 2, 6, 1))
sketch8.addConstraint(Sketcher.Constraint("Coincident", 6, 2, 7, 1))
sketch8.addConstraint(Sketcher.Constraint("Coincident", 7, 2, 4, 1))
sketch8.addConstraint(Sketcher.Constraint("Vertical", 0))
sketch8.addConstraint(Sketcher.Constraint("Horizontal", 1))
sketch8.addConstraint(Sketcher.Constraint("Vertical", 2))
sketch8.addConstraint(Sketcher.Constraint("Horizontal", 3))
sketch8.addConstraint(Sketcher.Constraint("Horizontal", 4))
sketch8.addConstraint(Sketcher.Constraint("Vertical", 5))
sketch8.addConstraint(Sketcher.Constraint("Horizontal", 6))
sketch8.addConstraint(Sketcher.Constraint("Vertical", 7))
sketch8.addConstraint(Sketcher.Constraint("PointOnObject", 2, 2, -1))
sketch8.addConstraint(Sketcher.Constraint("DistanceX", 1, 2, 1, 1, Q("160 mm")))
sketch8.addConstraint(Sketcher.Constraint("DistanceX", 4, 1, 4, 2, Q("150 mm")))
sketch8.addConstraint(Sketcher.Constraint("DistanceY", 0, 2, 0, 1, Q("90 mm")))
sketch8.addConstraint(Sketcher.Constraint("DistanceY", 5, 1, 5, 2, Q("80 mm")))
sketch8.addConstraint(Sketcher.Constraint("DistanceX", 0, 2, -1, 1, Q("100 mm")))
sketch8.addConstraint(Sketcher.Constraint("DistanceX", 4, 2, -1, 1, Q("105 mm")))
sketch8.addConstraint(Sketcher.Constraint("DistanceY", 4, 2, -1, 1, Q("85 mm")))
sketch8.setExpression("Constraints[17]", "Params.sketch8_width")
sketch8.setExpression("Constraints[18]", "Params.sketch8_width2")
sketch8.setExpression("Constraints[19]", "Params.sketch8_height")
sketch8.setExpression("Constraints[20]", "Params.sketch8_height2")
pad4 = body3.newObject("PartDesign::Pad", "Pad003")
pad4.Profile = sketch8
pad4.setExpression("Length", "Params.pad4_length")
doc.recompute()

body4 = doc.addObject("PartDesign::Body", "Body003")
body4.BaseFeature = body2
boolean = body.newObject("PartDesign::Boolean", "Boolean")
boolean.Type = "Fuse"
boolean.addObjects([body4])
doc.recompute()

body5 = doc.addObject("PartDesign::Body", "Body004")
body5.BaseFeature = body3
boolean2 = body.newObject("PartDesign::Boolean", "Boolean001")
boolean2.Type = "Fuse"
boolean2.addObjects([body5])
doc.recompute()

mirroring = doc.addObject("Part::Mirroring", "Mirroring")
mirroring.Source = body3
mirroring.Base = App.Vector(0, 0, 0)
mirroring.Normal = App.Vector(1, 0, 0)
body6 = doc.addObject("PartDesign::Body", "Body005")
body6.BaseFeature = mirroring
boolean3 = body.newObject("PartDesign::Boolean", "Boolean002")
boolean3.Type = "Fuse"
boolean3.addObjects([body6])
doc.recompute()

mirroring2 = doc.addObject("Part::Mirroring", "Mirroring001")
mirroring2.Source = body2
mirroring2.Base = App.Vector(0, 0, 0)
mirroring2.Normal = App.Vector(1, 0, 0)
body7 = doc.addObject("PartDesign::Body", "Body006")
body7.BaseFeature = mirroring2
boolean4 = body.newObject("PartDesign::Boolean", "Boolean003")
boolean4.Type = "Fuse"
boolean4.addObjects([body7])
doc.recompute()
mirroring.Visibility = False
mirroring2.Visibility = False

doc.recompute()
